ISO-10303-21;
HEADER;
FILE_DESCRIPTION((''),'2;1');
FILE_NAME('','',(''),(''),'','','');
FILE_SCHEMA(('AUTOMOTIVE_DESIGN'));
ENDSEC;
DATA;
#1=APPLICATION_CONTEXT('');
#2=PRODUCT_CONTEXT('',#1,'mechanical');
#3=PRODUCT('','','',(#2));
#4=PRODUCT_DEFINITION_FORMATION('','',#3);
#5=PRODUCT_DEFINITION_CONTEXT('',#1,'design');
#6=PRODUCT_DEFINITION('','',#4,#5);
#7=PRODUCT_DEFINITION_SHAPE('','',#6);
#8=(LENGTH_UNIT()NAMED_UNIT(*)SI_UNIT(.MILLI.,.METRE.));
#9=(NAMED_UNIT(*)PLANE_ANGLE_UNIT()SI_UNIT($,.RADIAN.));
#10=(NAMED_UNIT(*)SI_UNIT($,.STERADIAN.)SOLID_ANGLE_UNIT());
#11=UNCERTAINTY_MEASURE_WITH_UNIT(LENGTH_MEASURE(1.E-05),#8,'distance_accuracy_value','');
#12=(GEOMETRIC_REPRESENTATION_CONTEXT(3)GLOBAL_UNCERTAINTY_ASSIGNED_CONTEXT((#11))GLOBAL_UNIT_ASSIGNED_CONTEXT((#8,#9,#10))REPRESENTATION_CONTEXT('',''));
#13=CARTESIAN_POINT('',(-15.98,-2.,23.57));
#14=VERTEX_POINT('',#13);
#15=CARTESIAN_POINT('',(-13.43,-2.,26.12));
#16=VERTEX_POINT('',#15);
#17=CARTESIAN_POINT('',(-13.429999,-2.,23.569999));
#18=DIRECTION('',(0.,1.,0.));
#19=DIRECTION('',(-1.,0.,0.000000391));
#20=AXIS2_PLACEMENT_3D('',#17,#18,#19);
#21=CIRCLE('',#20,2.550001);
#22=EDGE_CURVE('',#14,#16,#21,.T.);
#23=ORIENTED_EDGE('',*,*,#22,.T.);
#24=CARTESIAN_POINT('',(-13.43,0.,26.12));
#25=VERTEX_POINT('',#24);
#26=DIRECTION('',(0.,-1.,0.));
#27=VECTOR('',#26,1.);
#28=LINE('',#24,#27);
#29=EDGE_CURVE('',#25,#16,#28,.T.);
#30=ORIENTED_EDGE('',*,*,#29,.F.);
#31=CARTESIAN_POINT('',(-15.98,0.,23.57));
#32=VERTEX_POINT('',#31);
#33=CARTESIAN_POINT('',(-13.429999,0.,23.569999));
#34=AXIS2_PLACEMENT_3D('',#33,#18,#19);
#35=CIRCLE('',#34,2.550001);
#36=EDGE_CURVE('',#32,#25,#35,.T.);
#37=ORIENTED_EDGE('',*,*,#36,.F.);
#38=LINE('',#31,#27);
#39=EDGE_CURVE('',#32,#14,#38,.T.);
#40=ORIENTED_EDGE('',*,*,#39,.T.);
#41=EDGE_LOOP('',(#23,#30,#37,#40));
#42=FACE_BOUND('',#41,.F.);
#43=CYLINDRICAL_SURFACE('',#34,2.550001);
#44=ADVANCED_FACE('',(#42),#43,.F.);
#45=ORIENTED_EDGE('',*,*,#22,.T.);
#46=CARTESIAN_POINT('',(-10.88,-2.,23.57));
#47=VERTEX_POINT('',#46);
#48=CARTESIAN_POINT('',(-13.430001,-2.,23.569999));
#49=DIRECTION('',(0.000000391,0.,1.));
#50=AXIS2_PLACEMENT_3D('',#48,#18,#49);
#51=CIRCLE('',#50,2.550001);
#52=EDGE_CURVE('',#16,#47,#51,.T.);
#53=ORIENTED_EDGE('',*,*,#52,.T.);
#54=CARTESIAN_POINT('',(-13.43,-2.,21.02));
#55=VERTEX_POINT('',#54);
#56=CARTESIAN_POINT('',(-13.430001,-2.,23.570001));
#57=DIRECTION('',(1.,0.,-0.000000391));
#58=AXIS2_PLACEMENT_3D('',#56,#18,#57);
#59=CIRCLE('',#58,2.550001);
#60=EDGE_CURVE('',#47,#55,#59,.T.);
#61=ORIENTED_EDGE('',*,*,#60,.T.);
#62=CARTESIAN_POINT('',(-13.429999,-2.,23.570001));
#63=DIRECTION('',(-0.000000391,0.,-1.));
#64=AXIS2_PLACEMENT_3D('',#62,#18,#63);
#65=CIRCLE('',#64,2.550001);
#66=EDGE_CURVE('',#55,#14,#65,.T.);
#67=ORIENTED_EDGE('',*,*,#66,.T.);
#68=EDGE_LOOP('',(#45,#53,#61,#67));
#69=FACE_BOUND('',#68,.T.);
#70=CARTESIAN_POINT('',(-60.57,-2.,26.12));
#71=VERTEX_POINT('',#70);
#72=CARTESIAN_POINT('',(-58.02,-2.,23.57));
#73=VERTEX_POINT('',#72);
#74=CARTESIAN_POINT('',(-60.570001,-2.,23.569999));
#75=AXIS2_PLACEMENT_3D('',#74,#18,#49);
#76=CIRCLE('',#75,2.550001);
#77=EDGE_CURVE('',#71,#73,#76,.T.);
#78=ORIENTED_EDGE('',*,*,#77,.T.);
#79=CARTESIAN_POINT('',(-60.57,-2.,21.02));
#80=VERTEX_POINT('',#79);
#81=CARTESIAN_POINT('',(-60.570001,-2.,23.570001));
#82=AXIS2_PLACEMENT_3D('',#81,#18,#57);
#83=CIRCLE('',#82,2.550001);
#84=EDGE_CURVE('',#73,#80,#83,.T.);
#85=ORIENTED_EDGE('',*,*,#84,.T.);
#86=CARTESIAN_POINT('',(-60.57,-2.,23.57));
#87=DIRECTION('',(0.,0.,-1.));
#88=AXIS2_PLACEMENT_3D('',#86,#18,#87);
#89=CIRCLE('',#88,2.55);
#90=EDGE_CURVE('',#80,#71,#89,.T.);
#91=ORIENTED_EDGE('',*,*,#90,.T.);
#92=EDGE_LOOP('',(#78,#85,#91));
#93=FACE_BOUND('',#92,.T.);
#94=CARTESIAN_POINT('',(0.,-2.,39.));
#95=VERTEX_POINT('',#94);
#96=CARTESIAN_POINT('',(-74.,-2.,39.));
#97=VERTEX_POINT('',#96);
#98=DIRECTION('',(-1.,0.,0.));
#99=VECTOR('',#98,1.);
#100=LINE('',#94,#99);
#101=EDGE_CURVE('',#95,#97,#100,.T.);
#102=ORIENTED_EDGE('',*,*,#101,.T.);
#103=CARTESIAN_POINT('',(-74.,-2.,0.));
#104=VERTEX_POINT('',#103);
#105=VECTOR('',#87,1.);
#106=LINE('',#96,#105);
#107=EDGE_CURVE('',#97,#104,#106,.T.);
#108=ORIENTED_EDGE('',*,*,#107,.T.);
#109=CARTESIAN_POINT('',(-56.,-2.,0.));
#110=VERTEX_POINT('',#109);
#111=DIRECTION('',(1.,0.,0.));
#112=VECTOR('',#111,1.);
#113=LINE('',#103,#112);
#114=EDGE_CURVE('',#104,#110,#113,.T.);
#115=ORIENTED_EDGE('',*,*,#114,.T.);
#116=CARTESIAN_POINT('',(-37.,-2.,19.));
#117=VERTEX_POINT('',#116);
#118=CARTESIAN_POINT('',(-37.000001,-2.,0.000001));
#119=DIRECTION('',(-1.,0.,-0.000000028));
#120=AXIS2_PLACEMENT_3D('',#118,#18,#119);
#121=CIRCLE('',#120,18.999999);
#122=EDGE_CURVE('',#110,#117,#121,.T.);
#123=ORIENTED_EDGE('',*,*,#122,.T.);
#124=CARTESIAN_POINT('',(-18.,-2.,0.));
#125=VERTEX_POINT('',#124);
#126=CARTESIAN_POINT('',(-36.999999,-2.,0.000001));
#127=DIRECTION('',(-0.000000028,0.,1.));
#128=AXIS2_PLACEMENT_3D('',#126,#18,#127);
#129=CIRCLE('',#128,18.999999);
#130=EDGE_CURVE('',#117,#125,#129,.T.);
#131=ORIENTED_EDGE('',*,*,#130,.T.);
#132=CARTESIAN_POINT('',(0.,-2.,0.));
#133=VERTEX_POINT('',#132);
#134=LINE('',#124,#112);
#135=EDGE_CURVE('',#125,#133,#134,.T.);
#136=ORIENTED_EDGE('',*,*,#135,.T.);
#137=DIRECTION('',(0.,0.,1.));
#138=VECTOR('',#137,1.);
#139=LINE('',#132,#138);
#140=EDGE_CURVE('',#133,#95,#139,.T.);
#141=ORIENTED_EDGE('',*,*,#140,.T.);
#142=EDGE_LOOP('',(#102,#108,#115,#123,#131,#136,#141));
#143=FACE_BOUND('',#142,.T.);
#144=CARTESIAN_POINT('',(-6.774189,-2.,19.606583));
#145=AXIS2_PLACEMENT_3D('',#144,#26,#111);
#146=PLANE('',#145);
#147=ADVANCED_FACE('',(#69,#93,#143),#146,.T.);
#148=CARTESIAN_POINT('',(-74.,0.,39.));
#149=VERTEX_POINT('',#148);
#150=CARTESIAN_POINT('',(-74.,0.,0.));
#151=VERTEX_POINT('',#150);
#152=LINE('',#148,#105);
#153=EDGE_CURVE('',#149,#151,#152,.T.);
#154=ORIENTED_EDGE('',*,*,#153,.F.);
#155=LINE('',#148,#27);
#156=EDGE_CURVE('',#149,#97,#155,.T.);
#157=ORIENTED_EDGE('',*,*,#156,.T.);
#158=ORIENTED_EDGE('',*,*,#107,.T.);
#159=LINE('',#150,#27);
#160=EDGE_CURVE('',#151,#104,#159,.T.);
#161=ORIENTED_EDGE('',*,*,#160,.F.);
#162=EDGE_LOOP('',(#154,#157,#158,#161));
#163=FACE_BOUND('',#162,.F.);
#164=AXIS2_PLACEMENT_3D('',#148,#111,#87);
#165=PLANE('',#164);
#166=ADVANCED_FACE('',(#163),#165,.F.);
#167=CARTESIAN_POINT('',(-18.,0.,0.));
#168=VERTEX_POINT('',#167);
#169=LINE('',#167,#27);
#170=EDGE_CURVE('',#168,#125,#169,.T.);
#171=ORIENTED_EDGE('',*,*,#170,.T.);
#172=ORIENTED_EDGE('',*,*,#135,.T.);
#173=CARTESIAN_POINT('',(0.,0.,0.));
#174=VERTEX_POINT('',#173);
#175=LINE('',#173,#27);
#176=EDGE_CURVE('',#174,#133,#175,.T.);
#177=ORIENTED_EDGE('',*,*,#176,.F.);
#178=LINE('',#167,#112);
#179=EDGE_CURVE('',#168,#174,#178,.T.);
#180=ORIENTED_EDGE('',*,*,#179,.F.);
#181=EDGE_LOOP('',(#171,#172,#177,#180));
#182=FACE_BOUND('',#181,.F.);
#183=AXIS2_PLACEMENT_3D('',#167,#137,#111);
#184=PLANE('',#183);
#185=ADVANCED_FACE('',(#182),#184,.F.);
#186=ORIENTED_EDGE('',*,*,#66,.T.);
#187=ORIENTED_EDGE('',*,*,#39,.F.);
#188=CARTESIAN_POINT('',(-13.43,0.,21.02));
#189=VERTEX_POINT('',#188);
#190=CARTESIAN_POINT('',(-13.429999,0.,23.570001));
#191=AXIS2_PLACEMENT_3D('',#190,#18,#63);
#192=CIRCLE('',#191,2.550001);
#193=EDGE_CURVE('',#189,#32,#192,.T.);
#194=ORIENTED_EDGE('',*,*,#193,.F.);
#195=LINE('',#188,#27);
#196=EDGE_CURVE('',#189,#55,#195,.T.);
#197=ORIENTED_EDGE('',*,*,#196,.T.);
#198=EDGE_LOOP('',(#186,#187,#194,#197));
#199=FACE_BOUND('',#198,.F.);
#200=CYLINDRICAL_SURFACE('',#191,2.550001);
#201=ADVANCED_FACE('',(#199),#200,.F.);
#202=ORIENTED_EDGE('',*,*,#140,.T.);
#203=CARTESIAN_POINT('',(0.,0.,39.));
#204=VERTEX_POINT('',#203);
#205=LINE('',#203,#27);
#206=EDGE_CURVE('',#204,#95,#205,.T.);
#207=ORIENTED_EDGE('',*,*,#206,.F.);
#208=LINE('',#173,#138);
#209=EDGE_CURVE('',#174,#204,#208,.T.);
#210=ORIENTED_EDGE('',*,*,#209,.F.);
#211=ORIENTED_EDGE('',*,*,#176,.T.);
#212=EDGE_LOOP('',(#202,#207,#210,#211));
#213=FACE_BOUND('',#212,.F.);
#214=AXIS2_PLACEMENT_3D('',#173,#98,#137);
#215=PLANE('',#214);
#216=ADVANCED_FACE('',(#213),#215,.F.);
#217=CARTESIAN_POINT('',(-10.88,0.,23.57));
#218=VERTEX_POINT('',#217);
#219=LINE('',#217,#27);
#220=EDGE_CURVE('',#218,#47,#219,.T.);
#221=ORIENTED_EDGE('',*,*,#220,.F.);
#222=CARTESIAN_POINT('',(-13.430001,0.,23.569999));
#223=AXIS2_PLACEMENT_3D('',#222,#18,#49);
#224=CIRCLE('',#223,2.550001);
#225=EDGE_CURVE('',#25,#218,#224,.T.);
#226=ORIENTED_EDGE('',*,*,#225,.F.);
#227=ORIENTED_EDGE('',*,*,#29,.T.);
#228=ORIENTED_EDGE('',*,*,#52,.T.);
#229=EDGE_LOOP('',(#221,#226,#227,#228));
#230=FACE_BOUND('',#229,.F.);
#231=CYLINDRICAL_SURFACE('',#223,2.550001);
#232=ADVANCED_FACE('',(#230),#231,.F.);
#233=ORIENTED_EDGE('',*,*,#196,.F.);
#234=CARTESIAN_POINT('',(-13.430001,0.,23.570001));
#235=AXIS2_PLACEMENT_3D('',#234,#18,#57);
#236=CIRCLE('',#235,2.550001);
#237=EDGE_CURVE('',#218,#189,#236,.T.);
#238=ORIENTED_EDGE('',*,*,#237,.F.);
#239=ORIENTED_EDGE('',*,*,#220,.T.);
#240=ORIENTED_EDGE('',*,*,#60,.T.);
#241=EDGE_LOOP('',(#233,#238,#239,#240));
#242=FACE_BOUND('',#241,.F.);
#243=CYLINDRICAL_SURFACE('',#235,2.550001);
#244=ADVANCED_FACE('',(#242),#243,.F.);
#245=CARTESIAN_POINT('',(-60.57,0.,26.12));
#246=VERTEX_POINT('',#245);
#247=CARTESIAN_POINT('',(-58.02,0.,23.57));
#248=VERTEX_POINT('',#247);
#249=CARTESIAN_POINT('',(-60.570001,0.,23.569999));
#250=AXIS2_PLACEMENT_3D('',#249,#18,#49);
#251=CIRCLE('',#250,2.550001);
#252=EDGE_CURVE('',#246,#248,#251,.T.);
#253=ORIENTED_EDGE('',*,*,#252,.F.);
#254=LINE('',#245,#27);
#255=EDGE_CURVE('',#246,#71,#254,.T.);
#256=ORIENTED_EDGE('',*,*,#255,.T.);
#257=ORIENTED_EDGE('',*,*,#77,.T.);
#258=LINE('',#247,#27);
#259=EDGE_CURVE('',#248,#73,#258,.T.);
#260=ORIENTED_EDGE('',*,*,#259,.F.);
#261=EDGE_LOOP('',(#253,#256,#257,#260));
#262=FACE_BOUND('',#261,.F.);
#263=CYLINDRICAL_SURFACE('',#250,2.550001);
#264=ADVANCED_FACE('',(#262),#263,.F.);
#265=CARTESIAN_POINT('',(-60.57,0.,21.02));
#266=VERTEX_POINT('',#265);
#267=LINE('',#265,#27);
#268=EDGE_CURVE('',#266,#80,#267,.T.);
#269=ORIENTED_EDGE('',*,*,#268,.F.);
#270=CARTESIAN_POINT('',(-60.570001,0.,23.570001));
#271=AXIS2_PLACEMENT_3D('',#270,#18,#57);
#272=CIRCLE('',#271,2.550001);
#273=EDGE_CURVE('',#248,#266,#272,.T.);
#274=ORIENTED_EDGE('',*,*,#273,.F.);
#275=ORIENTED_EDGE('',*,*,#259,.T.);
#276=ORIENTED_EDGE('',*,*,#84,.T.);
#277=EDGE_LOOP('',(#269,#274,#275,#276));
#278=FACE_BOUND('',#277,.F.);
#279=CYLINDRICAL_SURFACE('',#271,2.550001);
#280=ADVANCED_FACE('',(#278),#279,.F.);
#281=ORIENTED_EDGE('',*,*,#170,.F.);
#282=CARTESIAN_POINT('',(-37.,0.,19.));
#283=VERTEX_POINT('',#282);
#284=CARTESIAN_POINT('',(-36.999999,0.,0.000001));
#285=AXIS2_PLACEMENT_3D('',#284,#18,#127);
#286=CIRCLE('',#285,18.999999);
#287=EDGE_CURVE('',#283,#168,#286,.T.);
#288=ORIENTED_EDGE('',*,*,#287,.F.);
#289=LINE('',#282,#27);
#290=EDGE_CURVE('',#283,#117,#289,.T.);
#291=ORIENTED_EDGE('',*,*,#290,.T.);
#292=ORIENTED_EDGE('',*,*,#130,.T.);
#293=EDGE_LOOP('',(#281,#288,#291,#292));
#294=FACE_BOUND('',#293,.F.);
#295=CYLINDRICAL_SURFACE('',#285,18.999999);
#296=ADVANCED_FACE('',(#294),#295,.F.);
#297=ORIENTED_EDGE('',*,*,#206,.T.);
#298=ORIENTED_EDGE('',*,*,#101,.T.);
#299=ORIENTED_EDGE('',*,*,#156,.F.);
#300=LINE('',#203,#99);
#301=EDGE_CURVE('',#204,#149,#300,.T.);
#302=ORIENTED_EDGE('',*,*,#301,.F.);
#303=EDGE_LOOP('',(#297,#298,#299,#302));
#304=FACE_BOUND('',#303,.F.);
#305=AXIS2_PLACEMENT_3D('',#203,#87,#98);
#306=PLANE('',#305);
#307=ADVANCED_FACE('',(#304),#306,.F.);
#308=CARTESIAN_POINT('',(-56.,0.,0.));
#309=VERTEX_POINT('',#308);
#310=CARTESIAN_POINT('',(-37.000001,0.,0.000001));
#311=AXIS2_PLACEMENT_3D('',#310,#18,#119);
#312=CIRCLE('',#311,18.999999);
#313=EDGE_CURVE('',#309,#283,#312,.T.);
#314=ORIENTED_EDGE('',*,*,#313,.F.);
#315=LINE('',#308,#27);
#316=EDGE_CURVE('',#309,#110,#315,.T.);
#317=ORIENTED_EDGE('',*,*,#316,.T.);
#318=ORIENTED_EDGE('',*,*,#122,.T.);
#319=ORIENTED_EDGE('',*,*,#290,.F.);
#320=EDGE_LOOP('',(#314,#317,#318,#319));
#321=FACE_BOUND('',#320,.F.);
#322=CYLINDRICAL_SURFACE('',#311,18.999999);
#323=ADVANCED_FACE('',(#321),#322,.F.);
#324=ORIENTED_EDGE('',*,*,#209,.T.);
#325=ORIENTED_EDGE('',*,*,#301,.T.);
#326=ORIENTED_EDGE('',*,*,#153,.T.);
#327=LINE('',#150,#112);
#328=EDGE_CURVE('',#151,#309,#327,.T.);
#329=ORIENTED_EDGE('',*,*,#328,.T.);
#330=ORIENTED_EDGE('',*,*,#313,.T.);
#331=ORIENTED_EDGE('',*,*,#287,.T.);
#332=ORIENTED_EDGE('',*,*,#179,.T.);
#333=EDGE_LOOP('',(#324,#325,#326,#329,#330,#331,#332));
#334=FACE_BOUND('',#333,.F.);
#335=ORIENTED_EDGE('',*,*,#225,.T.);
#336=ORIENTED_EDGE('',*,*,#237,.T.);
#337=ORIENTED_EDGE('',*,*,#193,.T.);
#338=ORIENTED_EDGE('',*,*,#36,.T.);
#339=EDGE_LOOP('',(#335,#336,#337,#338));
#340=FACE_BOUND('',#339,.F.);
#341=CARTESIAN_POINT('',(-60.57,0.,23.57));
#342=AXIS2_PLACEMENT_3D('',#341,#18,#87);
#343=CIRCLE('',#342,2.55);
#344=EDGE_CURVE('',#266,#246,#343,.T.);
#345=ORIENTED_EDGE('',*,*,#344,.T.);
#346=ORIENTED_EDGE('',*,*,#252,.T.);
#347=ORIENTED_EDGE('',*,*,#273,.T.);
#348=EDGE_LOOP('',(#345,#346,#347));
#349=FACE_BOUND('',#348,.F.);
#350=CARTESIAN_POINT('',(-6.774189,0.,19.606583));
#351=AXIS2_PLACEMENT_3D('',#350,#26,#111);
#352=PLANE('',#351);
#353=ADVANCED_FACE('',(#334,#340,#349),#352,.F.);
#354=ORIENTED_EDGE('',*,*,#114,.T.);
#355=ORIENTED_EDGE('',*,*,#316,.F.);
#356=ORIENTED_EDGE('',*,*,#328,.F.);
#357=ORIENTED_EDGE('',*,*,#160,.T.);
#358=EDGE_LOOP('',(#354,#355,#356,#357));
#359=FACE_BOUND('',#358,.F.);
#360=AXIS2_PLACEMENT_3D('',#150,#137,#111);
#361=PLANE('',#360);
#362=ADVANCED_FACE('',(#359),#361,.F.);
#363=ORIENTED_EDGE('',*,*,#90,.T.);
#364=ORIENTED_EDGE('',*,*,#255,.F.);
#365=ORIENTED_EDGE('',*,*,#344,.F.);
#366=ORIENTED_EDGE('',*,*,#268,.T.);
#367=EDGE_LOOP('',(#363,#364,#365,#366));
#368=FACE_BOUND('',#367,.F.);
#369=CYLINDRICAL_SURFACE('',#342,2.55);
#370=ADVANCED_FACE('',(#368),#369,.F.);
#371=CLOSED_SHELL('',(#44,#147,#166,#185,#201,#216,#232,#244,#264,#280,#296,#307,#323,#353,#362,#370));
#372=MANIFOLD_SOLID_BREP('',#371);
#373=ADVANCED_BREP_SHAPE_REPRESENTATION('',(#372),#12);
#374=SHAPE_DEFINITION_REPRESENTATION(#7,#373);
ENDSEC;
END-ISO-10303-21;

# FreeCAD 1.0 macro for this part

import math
import FreeCAD as App
import Part
import Sketcher

V = App.Vector

doc = App.newDocument("Part")
body = doc.addObject("PartDesign::Body", "Body")

# Sketch on XZ plane
sketch1 = body.newObject("Sketcher::SketchObject", "Sketch")
sketch1.AttachmentSupport = (doc.getObject("XZ_Plane"), [""])
sketch1.MapMode = "FlatFace"
sketch1.addGeometry([
    Part.LineSegment(V(0, 0, 0), V(0, 39, 0)),  # 0
    Part.LineSegment(V(0, 39, 0), V(-74, 39, 0)),  # 1
    Part.LineSegment(V(-74, 39, 0), V(-74, 0, 0)),  # 2
    Part.LineSegment(V(-74, 0, 0), V(-56, 0, 0)),  # 3
    Part.ArcOfCircle(Part.Circle(V(-37, 0, 0), V(0, 0, 1), 19), math.radians(90), math.radians(180)),  # 4
    Part.ArcOfCircle(Part.Circle(V(-37, 0, 0), V(0, 0, 1), 19), math.radians(0), math.radians(90)),  # 5
    Part.LineSegment(V(-18, 0, 0), V(0, 0, 0)),  # 6
    Part.ArcOfCircle(Part.Circle(V(-60.6, 23.6, 0), V(0, 0, 1), 2.6), math.radians(0), math.radians(90)),  # 7
    Part.ArcOfCircle(Part.Circle(V(-60.6, 23.6, 0), V(0, 0, 1), 2.6), math.radians(-90), math.radians(0)),  # 8
    Part.ArcOfCircle(Part.Circle(V(-60.6, 23.6, 0), V(0, 0, 1), 2.5), math.radians(90), math.radians(270)),  # 9
    Part.ArcOfCircle(Part.Circle(V(-13.4, 23.6, 0), V(0, 0, 1), 2.6), math.radians(0), math.radians(90)),  # 10
    Part.ArcOfCircle(Part.Circle(V(-13.4, 23.6, 0), V(0, 0, 1), 2.6), math.radians(-90), math.radians(0)),  # 11
    Part.ArcOfCircle(Part.Circle(V(-13.4, 23.6, 0), V(0, 0, 1), 2.6), math.radians(-180), math.radians(-90)),  # 12
    Part.ArcOfCircle(Part.Circle(V(-13.4, 23.6, 0), V(0, 0, 1), 2.6), math.radians(90), math.radians(180)),  # 13
], False)
sketch1.addConstraint([
    Sketcher.Constraint("Coincident", 0, 2, 1, 1),
    Sketcher.Constraint("Coincident", 1, 2, 2, 1),
    Sketcher.Constraint("Coincident", 2, 2, 3, 1),
    Sketcher.Constraint("Coincident", 3, 2, 4, 2),
    Sketcher.Constraint("Tangent", 4, 1, 5, 2),
    Sketcher.Constraint("Coincident", 5, 1, 6, 1),
    Sketcher.Constraint("Coincident", 6, 2, 0, 1),
    Sketcher.Constraint("Tangent", 7, 1, 8, 2),
    Sketcher.Constraint("Tangent", 8, 1, 9, 2),
    Sketcher.Constraint("Tangent", 9, 1, 7, 2),
    Sketcher.Constraint("Tangent", 10, 1, 11, 2),
    Sketcher.Constraint("Tangent", 11, 1, 12, 2),
    Sketcher.Constraint("Tangent", 12, 1, 13, 2),
    Sketcher.Constraint("Tangent", 13, 1, 10, 2),
    Sketcher.Constraint("Vertical", 0),
    Sketcher.Constraint("Horizontal", 1),
    Sketcher.Constraint("Vertical", 2),
    Sketcher.Constraint("Horizontal", 3),
    Sketcher.Constraint("Horizontal", 6),
    Sketcher.Constraint("Coincident", 6, 2, -1, 1),
    Sketcher.Constraint("Equal", 4, 5),
    Sketcher.Constraint("Equal", 9, 10),
    Sketcher.Constraint("Equal", 10, 11),
    Sketcher.Constraint("PointOnObject", 4, 3, -1),
    Sketcher.Constraint("PointOnObject", 2, 2, -1),
    Sketcher.Constraint("Horizontal", 9, 3, 10, 3),
    Sketcher.Constraint("Horizontal", 13, 3, 7, 1),
    Sketcher.Constraint("Horizontal", 7, 1, 10, 1),
    Sketcher.Constraint("Horizontal", 10, 1, 12, 1),
    Sketcher.Constraint("Vertical", 5, 3, 4, 1),
    Sketcher.Constraint("Vertical", 9, 3, 8, 1),
    Sketcher.Constraint("Vertical", 8, 1, 9, 1),
    Sketcher.Constraint("Vertical", 13, 3, 11, 1),
    Sketcher.Constraint("Vertical", 11, 1, 13, 1),
    Sketcher.Constraint("Equal", 3, 6),
    Sketcher.Constraint("Radius", 4, 18.999999),
    Sketcher.Constraint("DistanceX", 1, 2, 1, 1, 74.0),
    Sketcher.Constraint("DistanceY", 0, 1, 0, 2, 39.0),
    Sketcher.Constraint("Radius", 7, 2.550001),
    Sketcher.Constraint("DistanceX", 7, 3, -1, 1, 60.570001),
    Sketcher.Constraint("DistanceY", -1, 1, 7, 3, 23.569999),
    Sketcher.Constraint("DistanceX", 10, 3, -1, 1, 13.430001),
])
pad1 = body.newObject("PartDesign::Pad", "Pad")
pad1.Profile = sketch1
pad1.Length = 2

doc.recompute()
